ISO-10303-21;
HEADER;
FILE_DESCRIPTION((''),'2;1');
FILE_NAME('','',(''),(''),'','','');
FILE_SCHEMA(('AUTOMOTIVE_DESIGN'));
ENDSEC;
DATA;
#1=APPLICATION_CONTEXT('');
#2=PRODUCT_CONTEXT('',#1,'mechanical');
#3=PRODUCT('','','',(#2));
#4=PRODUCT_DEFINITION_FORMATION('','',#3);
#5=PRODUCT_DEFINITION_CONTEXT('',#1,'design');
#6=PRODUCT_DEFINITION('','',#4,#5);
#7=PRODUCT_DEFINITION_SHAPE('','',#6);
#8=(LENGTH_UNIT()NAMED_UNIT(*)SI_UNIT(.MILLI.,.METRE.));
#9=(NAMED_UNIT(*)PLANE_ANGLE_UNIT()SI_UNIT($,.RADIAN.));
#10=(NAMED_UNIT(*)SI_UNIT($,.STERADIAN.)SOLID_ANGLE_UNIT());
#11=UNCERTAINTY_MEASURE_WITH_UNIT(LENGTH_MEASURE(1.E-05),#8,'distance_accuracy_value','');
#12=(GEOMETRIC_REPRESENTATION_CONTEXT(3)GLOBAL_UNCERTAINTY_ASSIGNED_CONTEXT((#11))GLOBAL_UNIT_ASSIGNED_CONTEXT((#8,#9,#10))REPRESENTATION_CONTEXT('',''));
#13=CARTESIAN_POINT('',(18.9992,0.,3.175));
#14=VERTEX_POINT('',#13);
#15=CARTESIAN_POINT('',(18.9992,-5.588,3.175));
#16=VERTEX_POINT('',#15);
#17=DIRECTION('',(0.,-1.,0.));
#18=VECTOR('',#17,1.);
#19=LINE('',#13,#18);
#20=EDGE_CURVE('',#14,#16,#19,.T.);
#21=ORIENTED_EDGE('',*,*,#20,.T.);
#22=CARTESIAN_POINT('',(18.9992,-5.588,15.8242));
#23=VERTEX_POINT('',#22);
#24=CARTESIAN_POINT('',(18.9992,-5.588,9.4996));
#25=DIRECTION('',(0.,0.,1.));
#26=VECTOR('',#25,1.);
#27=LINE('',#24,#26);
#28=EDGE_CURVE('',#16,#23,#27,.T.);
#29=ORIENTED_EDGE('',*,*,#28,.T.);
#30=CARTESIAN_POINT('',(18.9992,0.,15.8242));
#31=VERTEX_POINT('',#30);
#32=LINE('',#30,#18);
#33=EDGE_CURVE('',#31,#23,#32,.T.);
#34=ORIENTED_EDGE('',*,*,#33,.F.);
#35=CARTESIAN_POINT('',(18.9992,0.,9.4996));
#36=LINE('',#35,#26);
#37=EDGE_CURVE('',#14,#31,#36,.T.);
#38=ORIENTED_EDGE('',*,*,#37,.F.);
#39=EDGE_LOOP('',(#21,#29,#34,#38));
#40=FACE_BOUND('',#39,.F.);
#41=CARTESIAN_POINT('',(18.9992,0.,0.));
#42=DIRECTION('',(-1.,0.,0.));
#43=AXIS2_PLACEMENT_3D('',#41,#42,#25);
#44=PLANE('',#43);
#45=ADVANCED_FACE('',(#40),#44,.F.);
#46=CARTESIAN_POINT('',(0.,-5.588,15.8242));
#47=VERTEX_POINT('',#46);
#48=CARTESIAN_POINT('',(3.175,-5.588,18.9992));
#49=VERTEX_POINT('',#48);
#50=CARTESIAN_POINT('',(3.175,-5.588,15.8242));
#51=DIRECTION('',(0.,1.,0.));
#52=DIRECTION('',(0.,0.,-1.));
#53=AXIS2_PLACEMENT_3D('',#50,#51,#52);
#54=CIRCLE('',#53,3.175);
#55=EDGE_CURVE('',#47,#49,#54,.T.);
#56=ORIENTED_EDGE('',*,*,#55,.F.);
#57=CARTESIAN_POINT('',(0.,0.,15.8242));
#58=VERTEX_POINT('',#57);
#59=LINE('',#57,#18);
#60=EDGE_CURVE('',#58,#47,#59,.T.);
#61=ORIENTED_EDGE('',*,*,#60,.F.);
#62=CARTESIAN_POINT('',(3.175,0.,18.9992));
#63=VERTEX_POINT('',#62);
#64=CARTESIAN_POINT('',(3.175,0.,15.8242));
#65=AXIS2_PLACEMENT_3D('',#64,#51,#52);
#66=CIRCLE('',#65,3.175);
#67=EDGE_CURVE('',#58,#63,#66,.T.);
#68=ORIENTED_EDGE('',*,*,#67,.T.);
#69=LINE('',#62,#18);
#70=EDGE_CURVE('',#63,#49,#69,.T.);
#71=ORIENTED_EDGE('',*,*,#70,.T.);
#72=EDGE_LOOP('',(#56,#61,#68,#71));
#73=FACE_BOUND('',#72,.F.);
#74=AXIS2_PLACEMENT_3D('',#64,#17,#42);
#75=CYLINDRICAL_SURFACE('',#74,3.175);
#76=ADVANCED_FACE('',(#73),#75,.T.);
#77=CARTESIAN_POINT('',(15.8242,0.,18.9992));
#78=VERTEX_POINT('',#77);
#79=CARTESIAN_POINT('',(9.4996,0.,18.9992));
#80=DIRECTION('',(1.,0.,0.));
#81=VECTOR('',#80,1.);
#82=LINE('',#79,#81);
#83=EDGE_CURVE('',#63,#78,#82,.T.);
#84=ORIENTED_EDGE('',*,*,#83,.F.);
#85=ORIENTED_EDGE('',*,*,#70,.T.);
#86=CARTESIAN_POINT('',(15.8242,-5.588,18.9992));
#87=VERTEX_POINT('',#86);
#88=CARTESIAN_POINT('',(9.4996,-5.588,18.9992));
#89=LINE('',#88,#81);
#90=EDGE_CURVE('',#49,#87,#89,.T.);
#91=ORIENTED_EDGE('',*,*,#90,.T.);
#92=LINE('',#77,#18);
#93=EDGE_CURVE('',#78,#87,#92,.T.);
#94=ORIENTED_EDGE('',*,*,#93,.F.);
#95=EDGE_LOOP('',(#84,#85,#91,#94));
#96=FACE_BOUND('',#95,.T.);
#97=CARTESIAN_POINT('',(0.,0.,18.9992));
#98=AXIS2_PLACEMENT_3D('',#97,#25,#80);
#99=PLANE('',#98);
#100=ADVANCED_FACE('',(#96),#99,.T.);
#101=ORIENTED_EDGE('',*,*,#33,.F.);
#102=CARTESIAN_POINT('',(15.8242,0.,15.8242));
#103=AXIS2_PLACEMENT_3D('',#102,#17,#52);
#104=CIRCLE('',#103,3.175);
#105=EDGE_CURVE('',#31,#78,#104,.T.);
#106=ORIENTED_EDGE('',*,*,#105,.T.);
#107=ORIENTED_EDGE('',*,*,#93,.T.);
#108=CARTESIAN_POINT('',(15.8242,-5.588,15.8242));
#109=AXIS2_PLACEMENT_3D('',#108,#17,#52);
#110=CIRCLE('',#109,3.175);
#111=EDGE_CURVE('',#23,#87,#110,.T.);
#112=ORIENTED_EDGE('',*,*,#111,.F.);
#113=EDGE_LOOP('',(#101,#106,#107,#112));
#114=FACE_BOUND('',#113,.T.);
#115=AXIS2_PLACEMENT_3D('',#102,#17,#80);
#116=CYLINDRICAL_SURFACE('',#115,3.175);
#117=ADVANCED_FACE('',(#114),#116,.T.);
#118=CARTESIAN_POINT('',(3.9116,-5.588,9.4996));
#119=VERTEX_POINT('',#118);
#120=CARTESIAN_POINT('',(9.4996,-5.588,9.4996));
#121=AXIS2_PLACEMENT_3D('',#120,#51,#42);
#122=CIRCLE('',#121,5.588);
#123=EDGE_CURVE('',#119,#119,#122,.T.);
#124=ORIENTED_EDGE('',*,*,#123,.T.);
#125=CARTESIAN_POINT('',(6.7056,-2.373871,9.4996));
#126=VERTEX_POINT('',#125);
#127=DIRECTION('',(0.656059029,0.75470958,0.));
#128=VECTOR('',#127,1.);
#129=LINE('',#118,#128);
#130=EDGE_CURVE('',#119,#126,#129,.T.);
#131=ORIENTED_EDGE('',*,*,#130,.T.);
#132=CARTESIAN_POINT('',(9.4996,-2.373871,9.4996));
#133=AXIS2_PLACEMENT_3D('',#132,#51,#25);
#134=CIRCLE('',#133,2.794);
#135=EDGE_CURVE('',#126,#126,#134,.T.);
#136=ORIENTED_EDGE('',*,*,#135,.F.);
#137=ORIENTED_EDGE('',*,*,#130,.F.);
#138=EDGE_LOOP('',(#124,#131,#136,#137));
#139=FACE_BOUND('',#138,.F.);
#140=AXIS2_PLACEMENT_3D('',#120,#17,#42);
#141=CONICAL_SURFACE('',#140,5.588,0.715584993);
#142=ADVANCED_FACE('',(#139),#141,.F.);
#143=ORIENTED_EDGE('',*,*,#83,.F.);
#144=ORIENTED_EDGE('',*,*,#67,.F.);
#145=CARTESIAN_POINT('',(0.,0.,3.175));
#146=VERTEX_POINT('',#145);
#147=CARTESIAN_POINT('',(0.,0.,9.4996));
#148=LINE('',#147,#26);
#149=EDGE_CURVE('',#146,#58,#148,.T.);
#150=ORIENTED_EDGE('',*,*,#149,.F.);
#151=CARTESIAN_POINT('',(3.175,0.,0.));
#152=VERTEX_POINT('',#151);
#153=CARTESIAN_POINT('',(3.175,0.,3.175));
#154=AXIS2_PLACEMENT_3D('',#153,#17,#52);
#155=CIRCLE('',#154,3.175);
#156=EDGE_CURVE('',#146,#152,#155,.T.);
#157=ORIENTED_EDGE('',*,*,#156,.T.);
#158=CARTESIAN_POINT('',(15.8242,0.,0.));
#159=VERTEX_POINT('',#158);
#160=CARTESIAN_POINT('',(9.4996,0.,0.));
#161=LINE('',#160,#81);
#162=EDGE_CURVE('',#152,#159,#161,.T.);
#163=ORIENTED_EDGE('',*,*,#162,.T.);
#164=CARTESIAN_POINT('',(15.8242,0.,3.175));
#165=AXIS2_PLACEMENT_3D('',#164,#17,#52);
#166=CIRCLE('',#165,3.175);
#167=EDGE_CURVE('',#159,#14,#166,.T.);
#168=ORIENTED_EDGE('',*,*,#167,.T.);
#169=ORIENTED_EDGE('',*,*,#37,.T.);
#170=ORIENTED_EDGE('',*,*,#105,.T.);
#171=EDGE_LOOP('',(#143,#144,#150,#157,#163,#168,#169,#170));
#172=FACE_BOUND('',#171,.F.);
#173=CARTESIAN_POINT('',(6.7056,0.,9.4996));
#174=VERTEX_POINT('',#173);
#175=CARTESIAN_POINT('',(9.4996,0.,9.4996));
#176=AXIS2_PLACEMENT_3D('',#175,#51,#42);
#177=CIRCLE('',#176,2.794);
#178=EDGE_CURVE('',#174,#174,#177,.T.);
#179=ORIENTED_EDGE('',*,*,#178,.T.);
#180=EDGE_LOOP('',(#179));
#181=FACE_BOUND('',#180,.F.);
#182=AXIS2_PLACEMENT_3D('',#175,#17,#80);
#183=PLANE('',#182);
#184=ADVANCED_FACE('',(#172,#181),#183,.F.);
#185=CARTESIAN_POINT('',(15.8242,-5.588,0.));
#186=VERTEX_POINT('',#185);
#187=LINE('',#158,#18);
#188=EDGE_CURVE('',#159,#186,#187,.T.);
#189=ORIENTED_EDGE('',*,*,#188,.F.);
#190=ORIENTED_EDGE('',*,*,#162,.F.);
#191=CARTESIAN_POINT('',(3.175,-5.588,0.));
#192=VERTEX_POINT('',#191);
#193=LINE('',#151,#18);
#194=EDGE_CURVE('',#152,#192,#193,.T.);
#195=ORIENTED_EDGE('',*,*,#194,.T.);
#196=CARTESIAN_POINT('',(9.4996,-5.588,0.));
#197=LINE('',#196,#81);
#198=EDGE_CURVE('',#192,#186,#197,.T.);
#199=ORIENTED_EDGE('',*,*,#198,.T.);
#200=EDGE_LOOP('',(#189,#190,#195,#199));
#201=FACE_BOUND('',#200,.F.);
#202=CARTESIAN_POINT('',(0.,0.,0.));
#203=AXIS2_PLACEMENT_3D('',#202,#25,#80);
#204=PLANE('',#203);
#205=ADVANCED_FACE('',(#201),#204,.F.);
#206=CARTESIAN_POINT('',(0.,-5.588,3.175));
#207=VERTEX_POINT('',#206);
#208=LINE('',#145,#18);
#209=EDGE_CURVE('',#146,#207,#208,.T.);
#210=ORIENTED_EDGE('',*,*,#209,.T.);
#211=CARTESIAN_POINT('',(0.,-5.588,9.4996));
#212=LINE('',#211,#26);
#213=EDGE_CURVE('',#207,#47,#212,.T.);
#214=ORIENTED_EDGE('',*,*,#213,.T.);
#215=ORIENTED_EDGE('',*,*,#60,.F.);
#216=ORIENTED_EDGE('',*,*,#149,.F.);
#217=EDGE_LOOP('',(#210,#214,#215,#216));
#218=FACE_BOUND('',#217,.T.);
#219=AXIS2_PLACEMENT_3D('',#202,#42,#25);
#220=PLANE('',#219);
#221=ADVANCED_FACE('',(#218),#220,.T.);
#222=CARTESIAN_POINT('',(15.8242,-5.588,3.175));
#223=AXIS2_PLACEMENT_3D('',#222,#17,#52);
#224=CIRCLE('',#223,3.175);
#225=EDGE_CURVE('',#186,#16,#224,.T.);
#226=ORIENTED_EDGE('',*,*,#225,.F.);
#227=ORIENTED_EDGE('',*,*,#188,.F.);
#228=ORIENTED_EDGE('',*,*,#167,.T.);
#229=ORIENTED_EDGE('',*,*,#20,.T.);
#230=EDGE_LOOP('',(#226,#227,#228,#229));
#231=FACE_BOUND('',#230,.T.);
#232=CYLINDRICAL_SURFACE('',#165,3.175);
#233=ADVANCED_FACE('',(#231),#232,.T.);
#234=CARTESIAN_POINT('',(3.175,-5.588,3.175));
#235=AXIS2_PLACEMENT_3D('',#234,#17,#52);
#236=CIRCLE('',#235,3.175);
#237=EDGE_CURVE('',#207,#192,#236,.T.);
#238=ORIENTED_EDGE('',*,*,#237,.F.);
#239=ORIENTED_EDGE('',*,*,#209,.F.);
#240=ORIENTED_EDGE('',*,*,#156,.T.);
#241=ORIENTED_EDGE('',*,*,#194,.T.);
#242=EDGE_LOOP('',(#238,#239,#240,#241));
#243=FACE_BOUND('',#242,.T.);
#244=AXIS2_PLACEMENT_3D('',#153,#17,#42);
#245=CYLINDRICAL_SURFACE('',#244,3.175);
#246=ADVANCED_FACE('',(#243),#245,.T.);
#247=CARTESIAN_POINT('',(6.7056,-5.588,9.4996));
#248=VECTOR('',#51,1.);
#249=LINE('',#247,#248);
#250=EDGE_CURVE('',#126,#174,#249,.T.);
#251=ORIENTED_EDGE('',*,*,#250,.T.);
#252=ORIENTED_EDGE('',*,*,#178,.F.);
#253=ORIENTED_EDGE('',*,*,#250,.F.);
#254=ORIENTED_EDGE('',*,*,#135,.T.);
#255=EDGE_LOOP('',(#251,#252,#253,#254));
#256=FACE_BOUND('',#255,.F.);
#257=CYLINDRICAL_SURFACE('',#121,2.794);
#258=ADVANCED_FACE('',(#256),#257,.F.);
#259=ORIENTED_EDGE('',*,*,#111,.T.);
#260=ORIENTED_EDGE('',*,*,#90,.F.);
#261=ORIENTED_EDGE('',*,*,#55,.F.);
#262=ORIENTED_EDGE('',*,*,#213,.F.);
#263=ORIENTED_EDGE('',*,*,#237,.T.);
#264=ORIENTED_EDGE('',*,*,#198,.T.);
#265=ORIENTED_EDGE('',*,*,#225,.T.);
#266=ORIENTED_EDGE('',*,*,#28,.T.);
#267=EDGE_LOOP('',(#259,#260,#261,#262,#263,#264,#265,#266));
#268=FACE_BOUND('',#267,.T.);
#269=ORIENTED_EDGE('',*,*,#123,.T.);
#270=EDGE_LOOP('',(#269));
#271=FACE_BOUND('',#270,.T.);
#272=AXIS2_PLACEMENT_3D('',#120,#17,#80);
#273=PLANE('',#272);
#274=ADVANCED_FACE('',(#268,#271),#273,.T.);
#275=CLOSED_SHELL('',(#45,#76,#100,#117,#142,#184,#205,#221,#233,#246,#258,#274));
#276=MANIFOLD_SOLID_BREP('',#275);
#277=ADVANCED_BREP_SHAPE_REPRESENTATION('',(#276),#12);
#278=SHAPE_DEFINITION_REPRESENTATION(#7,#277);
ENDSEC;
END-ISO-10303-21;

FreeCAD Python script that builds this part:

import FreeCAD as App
import Part
import Sketcher
from FreeCAD import Vector
Q = App.Units.Quantity


def edges_at(feature, points):
    """Names of the edges that pass closest to the given points."""
    edges = feature.Shape.Edges
    near = lambda p: min(range(len(edges)), key=lambda i: edges[i].distToShape(Part.Vertex(*p))[0])
    return sorted({f"Edge{near(p) + 1}" for p in points})


def add_polygon(sketch, points):
    """Adds a closed chain of lines whose ends are joined by coincident constraints."""
    first, n = sketch.GeometryCount, len(points)
    for a, b in zip(points, points[1:] + points[:1]):
        sketch.addGeometry(Part.LineSegment(App.Vector(*a, 0), App.Vector(*b, 0)), False)
    for i in range(n):
        sketch.addConstraint(Sketcher.Constraint("Coincident", first + i, 2, first + (i + 1) % n, 1))

doc = App.newDocument("Part")
params = doc.addObject("Spreadsheet::Sheet", "Params")
for row, (alias, value) in enumerate([
    ("sketch1_width", "0.748 in"),
    ("pad1_length", "0.22 in"),
    ("fillet_radius", "0.125 in"),
    ("sketch2_diameter", "0.22 in"),
    ("hole_diameter", "0.22 in"),
    ("hole_csink_diameter", "0.44 in"),
], start=1):
    params.set(f"A{row}", alias)
    params.set(f"B{row}", "=" + value)
    params.setAlias(f"B{row}", alias)

body = doc.addObject("PartDesign::Body", "Body")

# Sketch on XZ plane
sketch1 = doc.addObject("Sketcher::SketchObject", "Sketch")
body.addObject(sketch1)
sketch1.AttachmentSupport = (doc.XZ_Plane, [""])
sketch1.MapMode = "FlatFace"
add_polygon(sketch1, [(0, 19), (0, 0), (19, 0), (19, 19)])  # lines 0-3
sketch1.addConstraint(Sketcher.Constraint("Vertical", 0))
sketch1.addConstraint(Sketcher.Constraint("Horizontal", 1))
sketch1.addConstraint(Sketcher.Constraint("Vertical", 2))
sketch1.addConstraint(Sketcher.Constraint("Horizontal", 3))
sketch1.addConstraint(Sketcher.Constraint("Coincident", 0, 2, -1, 1))
sketch1.addConstraint(Sketcher.Constraint("Equal", 3, 0))
sketch1.addConstraint(Sketcher.Constraint("DistanceX", 1, 1, 1, 2, Q("0.748 in")))
sketch1.setExpression("Constraints[10]", "Params.sketch1_width")
pad1 = doc.addObject("PartDesign::Pad", "Pad")
body.addObject(pad1)
pad1.Profile = sketch1
pad1.setExpression("Length", "Params.pad1_length")
doc.recompute()

fillet = doc.addObject("PartDesign::Fillet", "Fillet")
body.addObject(fillet)
fillet.Base = (pad1, edges_at(pad1, [
    (0, -2.794, 18.999),
    (18.999, -2.794, 18.999),
    (18.999, -2.794, 0),
    (0, -2.794, 0),
]))
fillet.setExpression("Radius", "Params.fillet_radius")

# Sketch on XZ plane
sketch2 = doc.addObject("Sketcher::SketchObject", "Sketch001")
body.addObject(sketch2)
sketch2.AttachmentSupport = (doc.XZ_Plane, [""])
sketch2.MapMode = "FlatFace"
sketch2.AttachmentOffset = App.Placement(Vector(0, 0, 0.22 * 25.4), App.Rotation())
sketch2.addGeometry(Part.Circle(Vector(9.5, 9.5, 0), Vector(0, 0, 1), 2.8), False)
sketch2.addConstraint(Sketcher.Constraint("Diameter", 0, Q("0.22 in")))
sketch2.addConstraint(Sketcher.Constraint("DistanceX", -1, 1, 0, 3, Q("0.374 in")))
sketch2.addConstraint(Sketcher.Constraint("DistanceY", -1, 1, 0, 3, Q("0.374 in")))
sketch2.setExpression("Constraints[0]", "Params.sketch2_diameter")
doc.recompute()
hole = doc.addObject("PartDesign::Hole", "Hole")
body.addObject(hole)
hole.Profile = sketch2
hole.ThreadType = "None"
hole.setExpression("Diameter", "Params.hole_diameter")
hole.DepthType = "ThroughAll"
hole.HoleCutType = "Countersink"
hole.setExpression("HoleCutDiameter", "Params.hole_csink_diameter")
hole.HoleCutCountersinkAngle = 82

doc.recompute()
